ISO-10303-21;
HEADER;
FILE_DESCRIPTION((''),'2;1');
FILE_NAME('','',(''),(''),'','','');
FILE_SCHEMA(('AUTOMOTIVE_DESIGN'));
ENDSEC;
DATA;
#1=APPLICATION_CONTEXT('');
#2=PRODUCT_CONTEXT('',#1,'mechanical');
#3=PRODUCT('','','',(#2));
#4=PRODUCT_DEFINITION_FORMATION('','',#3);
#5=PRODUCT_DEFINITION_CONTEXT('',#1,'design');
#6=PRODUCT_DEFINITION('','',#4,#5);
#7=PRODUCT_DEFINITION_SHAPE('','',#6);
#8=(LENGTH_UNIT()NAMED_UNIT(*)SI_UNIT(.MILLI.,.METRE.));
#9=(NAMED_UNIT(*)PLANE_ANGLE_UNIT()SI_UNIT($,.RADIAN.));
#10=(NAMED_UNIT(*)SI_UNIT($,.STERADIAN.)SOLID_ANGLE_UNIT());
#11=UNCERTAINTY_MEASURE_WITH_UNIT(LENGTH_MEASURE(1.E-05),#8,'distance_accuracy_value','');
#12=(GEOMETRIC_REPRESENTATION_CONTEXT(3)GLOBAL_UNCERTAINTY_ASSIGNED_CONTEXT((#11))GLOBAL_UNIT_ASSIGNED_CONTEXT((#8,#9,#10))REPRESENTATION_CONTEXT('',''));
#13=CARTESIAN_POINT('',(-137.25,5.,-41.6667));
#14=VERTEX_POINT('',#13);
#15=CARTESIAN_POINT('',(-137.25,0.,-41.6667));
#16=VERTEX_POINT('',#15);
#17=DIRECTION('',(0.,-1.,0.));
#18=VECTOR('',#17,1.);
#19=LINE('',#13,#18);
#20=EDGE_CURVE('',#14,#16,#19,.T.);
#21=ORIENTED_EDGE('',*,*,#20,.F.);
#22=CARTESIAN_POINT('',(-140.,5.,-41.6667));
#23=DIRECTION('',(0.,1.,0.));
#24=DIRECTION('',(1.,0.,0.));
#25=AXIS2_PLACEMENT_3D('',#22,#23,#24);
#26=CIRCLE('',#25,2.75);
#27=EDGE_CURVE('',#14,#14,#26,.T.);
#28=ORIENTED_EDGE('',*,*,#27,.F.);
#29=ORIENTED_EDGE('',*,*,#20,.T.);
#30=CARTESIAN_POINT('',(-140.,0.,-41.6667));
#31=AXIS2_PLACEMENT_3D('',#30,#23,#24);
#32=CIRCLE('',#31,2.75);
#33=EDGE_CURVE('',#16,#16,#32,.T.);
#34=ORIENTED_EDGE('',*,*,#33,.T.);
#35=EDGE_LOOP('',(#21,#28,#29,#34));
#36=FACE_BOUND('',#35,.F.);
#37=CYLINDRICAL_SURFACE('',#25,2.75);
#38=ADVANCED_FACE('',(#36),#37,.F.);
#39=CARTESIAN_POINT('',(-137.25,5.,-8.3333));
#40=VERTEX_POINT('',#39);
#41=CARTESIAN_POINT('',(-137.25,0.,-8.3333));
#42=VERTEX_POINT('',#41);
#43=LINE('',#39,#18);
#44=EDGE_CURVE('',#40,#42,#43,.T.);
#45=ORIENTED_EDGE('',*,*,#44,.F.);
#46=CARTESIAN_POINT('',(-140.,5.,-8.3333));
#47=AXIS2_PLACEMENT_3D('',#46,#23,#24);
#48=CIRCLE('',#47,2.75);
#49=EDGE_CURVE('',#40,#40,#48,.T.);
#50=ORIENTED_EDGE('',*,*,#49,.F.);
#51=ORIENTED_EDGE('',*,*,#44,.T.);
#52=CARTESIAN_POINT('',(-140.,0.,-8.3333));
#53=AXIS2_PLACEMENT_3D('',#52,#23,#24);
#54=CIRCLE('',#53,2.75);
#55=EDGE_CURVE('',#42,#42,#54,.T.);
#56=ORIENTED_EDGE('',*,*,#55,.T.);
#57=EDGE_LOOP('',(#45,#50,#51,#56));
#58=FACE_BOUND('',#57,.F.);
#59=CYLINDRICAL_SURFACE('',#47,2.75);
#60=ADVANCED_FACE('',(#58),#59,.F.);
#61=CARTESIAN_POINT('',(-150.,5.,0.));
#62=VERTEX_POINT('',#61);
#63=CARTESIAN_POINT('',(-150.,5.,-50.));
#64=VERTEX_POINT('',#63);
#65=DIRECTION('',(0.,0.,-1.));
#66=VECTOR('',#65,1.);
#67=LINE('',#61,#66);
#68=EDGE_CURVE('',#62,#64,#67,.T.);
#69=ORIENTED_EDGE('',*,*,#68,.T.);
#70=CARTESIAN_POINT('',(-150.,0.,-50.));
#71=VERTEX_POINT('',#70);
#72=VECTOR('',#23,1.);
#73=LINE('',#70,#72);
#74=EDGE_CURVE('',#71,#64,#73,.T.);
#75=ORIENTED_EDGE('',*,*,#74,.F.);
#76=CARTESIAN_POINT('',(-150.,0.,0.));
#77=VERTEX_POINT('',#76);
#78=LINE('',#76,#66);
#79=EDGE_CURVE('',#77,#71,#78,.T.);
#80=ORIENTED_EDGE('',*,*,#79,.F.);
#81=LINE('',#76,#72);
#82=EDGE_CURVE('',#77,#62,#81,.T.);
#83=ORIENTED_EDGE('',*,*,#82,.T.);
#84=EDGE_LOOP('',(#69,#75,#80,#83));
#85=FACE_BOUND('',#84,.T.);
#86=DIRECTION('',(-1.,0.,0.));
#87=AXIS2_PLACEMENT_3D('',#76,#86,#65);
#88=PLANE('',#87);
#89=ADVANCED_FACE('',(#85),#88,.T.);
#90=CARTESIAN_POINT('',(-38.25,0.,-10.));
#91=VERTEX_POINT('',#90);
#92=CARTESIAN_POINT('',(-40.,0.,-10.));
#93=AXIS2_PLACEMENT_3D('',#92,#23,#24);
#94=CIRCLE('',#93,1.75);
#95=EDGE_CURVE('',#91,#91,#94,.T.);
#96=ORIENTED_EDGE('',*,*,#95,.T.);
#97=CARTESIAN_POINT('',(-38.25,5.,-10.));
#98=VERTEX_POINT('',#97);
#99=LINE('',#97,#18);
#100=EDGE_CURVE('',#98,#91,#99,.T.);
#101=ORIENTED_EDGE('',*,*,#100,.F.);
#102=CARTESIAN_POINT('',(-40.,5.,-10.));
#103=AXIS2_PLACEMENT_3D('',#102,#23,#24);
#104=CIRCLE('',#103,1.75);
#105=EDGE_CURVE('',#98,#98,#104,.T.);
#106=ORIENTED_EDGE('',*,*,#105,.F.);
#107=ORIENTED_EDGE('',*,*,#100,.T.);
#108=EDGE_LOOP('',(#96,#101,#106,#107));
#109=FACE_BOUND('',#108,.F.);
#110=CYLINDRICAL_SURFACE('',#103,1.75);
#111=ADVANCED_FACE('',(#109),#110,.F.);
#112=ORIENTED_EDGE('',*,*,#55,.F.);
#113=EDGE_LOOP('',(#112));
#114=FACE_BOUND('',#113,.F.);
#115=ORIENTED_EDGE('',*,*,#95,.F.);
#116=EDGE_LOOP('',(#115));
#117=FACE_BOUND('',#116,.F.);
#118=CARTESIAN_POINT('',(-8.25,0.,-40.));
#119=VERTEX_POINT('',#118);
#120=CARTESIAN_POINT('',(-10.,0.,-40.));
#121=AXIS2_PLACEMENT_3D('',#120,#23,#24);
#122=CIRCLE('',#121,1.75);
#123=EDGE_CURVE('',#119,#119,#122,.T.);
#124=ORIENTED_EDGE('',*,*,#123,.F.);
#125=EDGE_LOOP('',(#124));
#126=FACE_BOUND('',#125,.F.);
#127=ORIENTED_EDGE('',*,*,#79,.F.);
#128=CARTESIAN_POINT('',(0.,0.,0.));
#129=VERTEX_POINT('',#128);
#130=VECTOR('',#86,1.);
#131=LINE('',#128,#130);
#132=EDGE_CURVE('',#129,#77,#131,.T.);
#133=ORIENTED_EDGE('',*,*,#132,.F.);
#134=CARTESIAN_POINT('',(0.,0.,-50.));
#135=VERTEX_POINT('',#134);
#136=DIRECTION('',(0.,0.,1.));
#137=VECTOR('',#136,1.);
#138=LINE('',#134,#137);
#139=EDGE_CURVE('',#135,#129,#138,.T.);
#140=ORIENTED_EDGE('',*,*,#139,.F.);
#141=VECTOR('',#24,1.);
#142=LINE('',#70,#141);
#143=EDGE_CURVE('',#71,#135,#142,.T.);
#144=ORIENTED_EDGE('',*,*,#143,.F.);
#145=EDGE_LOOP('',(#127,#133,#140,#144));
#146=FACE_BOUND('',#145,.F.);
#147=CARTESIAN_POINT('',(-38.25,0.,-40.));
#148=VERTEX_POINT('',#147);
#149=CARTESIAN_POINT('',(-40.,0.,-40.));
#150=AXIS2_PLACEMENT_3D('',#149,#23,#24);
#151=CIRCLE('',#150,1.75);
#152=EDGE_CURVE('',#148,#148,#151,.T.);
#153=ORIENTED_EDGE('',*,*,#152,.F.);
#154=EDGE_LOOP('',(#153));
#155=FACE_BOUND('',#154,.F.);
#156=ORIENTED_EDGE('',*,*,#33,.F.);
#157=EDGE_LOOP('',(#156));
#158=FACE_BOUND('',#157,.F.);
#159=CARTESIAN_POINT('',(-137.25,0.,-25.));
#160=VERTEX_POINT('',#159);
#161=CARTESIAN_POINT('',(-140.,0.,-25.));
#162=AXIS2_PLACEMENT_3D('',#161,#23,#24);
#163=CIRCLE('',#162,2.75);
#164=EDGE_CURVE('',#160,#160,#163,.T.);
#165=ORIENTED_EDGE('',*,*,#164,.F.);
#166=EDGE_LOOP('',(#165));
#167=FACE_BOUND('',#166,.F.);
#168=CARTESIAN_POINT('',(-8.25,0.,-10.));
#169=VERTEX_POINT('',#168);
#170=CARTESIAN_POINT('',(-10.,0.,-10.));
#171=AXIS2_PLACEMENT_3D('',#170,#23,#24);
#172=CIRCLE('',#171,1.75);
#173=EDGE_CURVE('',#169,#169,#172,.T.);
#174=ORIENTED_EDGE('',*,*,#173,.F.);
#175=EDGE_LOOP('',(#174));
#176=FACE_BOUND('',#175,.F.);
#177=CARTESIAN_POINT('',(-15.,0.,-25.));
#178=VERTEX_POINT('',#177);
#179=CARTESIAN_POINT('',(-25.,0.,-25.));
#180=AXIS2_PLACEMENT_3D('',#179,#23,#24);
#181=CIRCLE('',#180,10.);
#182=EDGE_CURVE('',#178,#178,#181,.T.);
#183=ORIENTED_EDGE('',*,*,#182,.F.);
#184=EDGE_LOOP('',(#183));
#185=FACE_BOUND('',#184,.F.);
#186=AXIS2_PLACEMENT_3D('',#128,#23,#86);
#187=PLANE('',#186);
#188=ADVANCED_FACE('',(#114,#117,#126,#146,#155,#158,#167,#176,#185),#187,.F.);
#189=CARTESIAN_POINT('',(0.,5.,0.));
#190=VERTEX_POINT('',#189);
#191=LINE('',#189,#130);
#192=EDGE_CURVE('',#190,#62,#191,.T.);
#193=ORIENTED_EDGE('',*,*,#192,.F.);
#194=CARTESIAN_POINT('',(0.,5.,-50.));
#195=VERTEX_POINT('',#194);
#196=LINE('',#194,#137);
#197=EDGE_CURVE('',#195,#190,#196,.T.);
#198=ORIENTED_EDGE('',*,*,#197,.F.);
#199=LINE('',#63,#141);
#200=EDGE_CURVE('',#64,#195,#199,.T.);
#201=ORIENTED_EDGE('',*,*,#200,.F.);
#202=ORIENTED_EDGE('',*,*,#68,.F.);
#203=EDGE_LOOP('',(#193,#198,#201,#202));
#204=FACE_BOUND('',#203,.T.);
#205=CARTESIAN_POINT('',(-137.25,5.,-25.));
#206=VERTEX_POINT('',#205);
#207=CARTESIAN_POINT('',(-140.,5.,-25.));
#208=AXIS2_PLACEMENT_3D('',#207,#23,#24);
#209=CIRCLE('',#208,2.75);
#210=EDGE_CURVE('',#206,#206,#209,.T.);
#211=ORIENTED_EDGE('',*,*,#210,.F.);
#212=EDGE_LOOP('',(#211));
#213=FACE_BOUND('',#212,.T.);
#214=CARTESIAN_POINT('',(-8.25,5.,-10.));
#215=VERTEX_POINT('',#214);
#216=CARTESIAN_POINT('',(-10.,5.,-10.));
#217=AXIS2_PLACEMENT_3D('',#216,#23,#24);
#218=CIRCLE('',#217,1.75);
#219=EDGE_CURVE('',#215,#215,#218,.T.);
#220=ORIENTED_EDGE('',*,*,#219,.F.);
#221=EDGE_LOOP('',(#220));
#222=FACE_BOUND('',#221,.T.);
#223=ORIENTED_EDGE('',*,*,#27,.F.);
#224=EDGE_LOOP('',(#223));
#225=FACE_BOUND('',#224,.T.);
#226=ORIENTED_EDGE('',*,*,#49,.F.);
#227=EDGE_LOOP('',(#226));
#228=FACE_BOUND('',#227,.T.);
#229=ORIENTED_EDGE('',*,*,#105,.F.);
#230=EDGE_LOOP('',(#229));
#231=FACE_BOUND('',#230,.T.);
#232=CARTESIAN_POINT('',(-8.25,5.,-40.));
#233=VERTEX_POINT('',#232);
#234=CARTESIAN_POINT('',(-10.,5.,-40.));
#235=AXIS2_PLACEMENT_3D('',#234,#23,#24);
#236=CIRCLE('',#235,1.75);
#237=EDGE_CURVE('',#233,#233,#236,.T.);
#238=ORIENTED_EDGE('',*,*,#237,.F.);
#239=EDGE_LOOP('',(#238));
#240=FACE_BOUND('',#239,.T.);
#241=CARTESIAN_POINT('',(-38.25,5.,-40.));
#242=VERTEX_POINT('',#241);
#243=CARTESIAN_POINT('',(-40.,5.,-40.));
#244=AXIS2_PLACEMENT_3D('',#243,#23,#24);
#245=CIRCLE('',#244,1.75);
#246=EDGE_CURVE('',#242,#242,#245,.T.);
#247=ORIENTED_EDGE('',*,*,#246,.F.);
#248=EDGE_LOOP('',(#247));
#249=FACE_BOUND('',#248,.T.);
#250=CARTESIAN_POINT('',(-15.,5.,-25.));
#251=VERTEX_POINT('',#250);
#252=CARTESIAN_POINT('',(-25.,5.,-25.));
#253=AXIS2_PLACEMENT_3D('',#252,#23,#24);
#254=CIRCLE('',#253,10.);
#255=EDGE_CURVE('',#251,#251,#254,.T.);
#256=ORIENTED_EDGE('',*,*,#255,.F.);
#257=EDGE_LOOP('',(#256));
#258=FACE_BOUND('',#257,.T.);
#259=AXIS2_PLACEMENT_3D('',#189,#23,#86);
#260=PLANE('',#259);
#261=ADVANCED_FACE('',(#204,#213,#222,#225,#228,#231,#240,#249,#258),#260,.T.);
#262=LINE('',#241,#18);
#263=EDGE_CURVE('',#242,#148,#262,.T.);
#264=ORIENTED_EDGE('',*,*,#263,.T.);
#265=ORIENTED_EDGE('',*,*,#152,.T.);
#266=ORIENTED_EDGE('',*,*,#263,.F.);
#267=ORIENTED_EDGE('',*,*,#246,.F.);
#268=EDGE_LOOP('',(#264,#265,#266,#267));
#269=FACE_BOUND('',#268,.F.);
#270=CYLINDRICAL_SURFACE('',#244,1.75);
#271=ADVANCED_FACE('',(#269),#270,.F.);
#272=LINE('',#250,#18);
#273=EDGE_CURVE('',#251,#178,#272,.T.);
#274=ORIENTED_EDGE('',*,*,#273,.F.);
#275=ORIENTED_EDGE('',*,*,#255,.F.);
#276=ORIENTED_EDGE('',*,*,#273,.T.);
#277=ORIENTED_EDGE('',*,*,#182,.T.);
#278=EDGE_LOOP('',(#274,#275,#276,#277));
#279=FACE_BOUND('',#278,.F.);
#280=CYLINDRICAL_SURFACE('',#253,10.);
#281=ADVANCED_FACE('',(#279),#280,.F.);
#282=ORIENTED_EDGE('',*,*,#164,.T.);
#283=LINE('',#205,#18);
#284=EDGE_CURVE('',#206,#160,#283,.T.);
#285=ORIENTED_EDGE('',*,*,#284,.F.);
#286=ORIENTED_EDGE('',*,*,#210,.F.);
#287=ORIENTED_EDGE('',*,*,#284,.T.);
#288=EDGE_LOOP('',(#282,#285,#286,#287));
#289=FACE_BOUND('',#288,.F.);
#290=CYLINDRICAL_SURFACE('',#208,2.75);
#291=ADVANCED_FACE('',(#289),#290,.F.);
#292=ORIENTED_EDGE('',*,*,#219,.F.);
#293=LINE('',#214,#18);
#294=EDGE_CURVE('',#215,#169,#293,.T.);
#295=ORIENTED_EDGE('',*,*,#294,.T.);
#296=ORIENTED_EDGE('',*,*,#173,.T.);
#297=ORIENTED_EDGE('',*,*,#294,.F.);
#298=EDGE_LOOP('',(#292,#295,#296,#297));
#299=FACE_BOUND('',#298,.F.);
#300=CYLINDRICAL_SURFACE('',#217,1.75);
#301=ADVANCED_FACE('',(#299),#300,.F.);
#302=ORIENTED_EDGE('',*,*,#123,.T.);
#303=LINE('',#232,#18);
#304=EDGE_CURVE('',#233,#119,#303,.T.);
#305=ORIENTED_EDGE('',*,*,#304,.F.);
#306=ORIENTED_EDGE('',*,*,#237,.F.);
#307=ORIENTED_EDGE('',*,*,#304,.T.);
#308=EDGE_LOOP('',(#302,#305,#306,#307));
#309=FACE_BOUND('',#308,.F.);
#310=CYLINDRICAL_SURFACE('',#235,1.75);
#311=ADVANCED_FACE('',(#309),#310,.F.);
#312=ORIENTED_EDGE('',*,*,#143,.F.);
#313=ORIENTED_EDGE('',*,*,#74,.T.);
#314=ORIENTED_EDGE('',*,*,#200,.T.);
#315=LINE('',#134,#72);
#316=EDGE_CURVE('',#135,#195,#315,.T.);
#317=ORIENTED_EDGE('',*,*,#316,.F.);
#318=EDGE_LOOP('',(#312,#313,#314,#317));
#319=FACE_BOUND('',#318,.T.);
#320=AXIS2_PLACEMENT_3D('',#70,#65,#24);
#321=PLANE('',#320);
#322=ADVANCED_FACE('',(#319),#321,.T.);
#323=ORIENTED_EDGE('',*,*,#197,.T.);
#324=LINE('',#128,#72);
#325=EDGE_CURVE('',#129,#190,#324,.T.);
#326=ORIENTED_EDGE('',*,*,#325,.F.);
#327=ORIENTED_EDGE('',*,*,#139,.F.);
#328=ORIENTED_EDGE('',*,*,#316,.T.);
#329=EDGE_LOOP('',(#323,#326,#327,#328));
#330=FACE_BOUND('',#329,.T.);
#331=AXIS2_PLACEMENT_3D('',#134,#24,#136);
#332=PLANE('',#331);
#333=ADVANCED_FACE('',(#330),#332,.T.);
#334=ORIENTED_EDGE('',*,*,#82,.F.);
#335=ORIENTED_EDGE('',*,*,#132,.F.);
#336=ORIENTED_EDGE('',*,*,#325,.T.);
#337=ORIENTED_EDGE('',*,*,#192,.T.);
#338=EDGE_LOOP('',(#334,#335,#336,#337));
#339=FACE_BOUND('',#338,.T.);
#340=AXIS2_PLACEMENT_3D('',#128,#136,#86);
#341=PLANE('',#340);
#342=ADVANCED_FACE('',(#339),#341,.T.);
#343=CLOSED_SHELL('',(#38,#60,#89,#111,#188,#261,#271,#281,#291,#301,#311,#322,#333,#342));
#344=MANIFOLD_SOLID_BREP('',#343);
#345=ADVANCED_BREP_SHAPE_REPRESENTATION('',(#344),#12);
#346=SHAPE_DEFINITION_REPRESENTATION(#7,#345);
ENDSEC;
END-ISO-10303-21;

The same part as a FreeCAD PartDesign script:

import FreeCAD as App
import Part
import Sketcher

V = App.Vector


def add_polygon(sketch, points):
    """Adds a closed chain of lines whose ends are joined by coincident constraints."""
    first, n = sketch.GeometryCount, len(points)
    for a, b in zip(points, points[1:] + points[:1]):
        sketch.addGeometry(Part.LineSegment(App.Vector(*a, 0), App.Vector(*b, 0)), False)
    for i in range(n):
        sketch.addConstraint(Sketcher.Constraint("Coincident", first + i, 2, first + (i + 1) % n, 1))

doc = App.newDocument("Part")
params = doc.addObject("Spreadsheet::Sheet", "Params")
for row, (alias, value) in enumerate([
    ("sketch1_width", "150 mm"),
    ("sketch1_height", "50 mm"),
    ("pad1_length", "5 mm"),
    ("sketch2_diameter", "20 mm"),
    ("sketch2_diameter2", "5.5 mm"),
    ("sketch2_diameter3", "3.5 mm"),
    ("pocket1_length", "5 mm"),
], start=1):
    params.set(f"A{row}", alias)
    params.set(f"B{row}", "=" + value)
    params.setAlias(f"B{row}", alias)

body = doc.addObject("PartDesign::Body", "Body")

sketch1 = body.newObject("Sketcher::SketchObject", "Sketch")
sketch1.AttachmentSupport = (doc.getObject("XZ_Plane"), [""])
sketch1.MapMode = "FlatFace"
add_polygon(sketch1, [(-150, 0), (0, 0), (0, -50), (-150, -50)])
sketch1.addConstraint([
    Sketcher.Constraint("Horizontal", 0),
    Sketcher.Constraint("Vertical", 1),
    Sketcher.Constraint("Horizontal", 2),
    Sketcher.Constraint("Vertical", 3),
    Sketcher.Constraint("Coincident", 0, 2, -1, 1),
    Sketcher.Constraint("DistanceX", 0, 1, 0, 2, 150.0),
    Sketcher.Constraint("DistanceY", 1, 2, 1, 1, 50.0),
])
sketch1.setExpression("Constraints[9]", "Params.sketch1_width")
sketch1.setExpression("Constraints[10]", "Params.sketch1_height")
pad1 = body.newObject("PartDesign::Pad", "Pad")
pad1.Profile = sketch1
pad1.setExpression("Length", "Params.pad1_length")
pad1.Reversed = True

sketch2 = body.newObject("Sketcher::SketchObject", "Sketch001")
sketch2.AttachmentSupport = (doc.getObject("XZ_Plane"), [""])
sketch2.MapMode = "FlatFace"
sketch2.AttachmentOffset = App.Placement(V(0, 0, -5), App.Rotation())
sketch2.addGeometry([
    Part.Circle(V(-140, -41.6667, 0), V(0, 0, 1), 2.75),
    Part.Circle(V(-140, -25, 0), V(0, 0, 1), 2.75),
    Part.Circle(V(-140, -8.3333, 0), V(0, 0, 1), 2.75),
    Part.Circle(V(-40, -10, 0), V(0, 0, 1), 1.75),
    Part.Circle(V(-40, -40, 0), V(0, 0, 1), 1.75),
    Part.Circle(V(-10, -10, 0), V(0, 0, 1), 1.75),
    Part.Circle(V(-10, -40, 0), V(0, 0, 1), 1.75),
    Part.Circle(V(-25, -25, 0), V(0, 0, 1), 10),
], False)
sketch2.addConstraint([
    Sketcher.Constraint("Equal", 0, 1),
    Sketcher.Constraint("Equal", 1, 2),
    Sketcher.Constraint("Equal", 3, 4),
    Sketcher.Constraint("Equal", 4, 5),
    Sketcher.Constraint("Equal", 5, 6),
    Sketcher.Constraint("Horizontal", 3, 3, 5, 3),
    Sketcher.Constraint("Horizontal", 4, 3, 6, 3),
    Sketcher.Constraint("Horizontal", 1, 3, 7, 3),
    Sketcher.Constraint("Vertical", 0, 3, 1, 3),
    Sketcher.Constraint("Vertical", 1, 3, 2, 3),
    Sketcher.Constraint("Vertical", 3, 3, 4, 3),
    Sketcher.Constraint("Vertical", 5, 3, 6, 3),
    Sketcher.Constraint("Diameter", 7, 20.0),
    Sketcher.Constraint("Diameter", 0, 5.5),
    Sketcher.Constraint("Diameter", 3, 3.5),
    Sketcher.Constraint("DistanceY", 1, 3, -1, 1, 25.0),
    Sketcher.Constraint("DistanceY", 3, 3, -1, 1, 10.0),
    Sketcher.Constraint("DistanceX", 5, 3, -1, 1, 10.0),
    Sketcher.Constraint("DistanceX", 7, 3, -1, 1, 25.0),
    Sketcher.Constraint("DistanceY", 4, 3, 3, 3, 30.0),
    Sketcher.Constraint("DistanceX", 3, 3, 5, 3, 30.0),
    Sketcher.Constraint("DistanceX", 0, 3, -1, 1, 140.0),
    Sketcher.Constraint("DistanceY", 2, 3, -1, 1, 8.3333),
    Sketcher.Constraint("DistanceY", 0, 3, 1, 3, 16.6667),
])
sketch2.setExpression("Constraints[12]", "Params.sketch2_diameter")
sketch2.setExpression("Constraints[13]", "Params.sketch2_diameter2")
sketch2.setExpression("Constraints[14]", "Params.sketch2_diameter3")
pocket1 = body.newObject("PartDesign::Pocket", "Pocket")
pocket1.Profile = sketch2
pocket1.setExpression("Length", "Params.pocket1_length")
pocket1.Reversed = True

doc.recompute()
